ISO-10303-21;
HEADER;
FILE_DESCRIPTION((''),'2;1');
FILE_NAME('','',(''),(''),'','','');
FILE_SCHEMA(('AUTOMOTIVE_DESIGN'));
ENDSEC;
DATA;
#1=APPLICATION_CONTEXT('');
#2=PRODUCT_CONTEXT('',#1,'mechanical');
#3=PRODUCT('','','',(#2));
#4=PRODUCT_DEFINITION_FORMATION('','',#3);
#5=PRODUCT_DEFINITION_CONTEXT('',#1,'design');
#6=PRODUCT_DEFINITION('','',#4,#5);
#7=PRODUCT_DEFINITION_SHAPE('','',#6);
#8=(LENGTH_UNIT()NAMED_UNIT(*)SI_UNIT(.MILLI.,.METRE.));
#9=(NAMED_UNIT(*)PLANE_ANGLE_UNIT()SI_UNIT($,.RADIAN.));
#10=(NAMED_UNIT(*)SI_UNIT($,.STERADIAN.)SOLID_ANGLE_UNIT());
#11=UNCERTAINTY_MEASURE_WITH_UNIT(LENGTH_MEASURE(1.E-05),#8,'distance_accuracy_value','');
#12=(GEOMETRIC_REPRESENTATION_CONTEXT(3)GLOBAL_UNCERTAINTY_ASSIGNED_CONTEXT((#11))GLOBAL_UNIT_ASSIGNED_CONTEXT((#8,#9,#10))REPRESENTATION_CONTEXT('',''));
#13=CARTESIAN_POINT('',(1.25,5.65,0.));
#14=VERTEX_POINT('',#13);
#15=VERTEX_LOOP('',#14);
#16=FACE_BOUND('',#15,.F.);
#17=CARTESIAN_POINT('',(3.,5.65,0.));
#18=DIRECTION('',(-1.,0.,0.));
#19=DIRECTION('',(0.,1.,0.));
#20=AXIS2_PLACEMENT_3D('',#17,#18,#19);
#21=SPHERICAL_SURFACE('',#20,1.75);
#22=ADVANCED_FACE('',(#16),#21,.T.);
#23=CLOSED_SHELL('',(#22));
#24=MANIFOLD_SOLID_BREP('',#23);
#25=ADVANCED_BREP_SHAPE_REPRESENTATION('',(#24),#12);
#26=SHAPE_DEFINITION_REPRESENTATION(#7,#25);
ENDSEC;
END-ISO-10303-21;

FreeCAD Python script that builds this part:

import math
import FreeCAD as App
import Part
import Sketcher

V = App.Vector

doc = App.newDocument("Part")
body = doc.addObject("PartDesign::Body", "Body")

# Sketch on XY plane
sketch1 = body.newObject("Sketcher::SketchObject", "Sketch")
sketch1.AttachmentSupport = (doc.getObject("XY_Plane"), [""])
sketch1.MapMode = "FlatFace"
sketch1.addGeometry([
    Part.LineSegment(V(1.2, 5.7, 0), V(4.8, 5.7, 0)),
    Part.ArcOfCircle(Part.Circle(V(3, 5.7, 0), V(0, 0, 1), 1.8), math.radians(0), math.radians(180)),
], False)
sketch1.addGeometry(Part.LineSegment(V(1.2, 5.7, 0), V(4.8, 5.7, 0)), True)  # axis
sketch1.addConstraint([
    Sketcher.Constraint("Coincident", 0, 1, 1, 2),
    Sketcher.Constraint("Coincident", 1, 1, 0, 2),
    Sketcher.Constraint("Horizontal", 0),
    Sketcher.Constraint("Horizontal", 2),
    Sketcher.Constraint("Coincident", 2, 1, 0, 1),
    Sketcher.Constraint("Horizontal", 1, 3, 0, 1),
    Sketcher.Constraint("Equal", 0, 2),
    Sketcher.Constraint("Radius", 1, 1.75),
    Sketcher.Constraint("DistanceX", -1, 1, 1, 3, 3.0),
    Sketcher.Constraint("DistanceY", -1, 1, 1, 3, 5.65),
])
revolution = body.newObject("PartDesign::Revolution", "Revolution")
revolution.Profile = sketch1
revolution.ReferenceAxis = (sketch1, ["Axis0"])
revolution.Angle = 360

doc.recompute()
